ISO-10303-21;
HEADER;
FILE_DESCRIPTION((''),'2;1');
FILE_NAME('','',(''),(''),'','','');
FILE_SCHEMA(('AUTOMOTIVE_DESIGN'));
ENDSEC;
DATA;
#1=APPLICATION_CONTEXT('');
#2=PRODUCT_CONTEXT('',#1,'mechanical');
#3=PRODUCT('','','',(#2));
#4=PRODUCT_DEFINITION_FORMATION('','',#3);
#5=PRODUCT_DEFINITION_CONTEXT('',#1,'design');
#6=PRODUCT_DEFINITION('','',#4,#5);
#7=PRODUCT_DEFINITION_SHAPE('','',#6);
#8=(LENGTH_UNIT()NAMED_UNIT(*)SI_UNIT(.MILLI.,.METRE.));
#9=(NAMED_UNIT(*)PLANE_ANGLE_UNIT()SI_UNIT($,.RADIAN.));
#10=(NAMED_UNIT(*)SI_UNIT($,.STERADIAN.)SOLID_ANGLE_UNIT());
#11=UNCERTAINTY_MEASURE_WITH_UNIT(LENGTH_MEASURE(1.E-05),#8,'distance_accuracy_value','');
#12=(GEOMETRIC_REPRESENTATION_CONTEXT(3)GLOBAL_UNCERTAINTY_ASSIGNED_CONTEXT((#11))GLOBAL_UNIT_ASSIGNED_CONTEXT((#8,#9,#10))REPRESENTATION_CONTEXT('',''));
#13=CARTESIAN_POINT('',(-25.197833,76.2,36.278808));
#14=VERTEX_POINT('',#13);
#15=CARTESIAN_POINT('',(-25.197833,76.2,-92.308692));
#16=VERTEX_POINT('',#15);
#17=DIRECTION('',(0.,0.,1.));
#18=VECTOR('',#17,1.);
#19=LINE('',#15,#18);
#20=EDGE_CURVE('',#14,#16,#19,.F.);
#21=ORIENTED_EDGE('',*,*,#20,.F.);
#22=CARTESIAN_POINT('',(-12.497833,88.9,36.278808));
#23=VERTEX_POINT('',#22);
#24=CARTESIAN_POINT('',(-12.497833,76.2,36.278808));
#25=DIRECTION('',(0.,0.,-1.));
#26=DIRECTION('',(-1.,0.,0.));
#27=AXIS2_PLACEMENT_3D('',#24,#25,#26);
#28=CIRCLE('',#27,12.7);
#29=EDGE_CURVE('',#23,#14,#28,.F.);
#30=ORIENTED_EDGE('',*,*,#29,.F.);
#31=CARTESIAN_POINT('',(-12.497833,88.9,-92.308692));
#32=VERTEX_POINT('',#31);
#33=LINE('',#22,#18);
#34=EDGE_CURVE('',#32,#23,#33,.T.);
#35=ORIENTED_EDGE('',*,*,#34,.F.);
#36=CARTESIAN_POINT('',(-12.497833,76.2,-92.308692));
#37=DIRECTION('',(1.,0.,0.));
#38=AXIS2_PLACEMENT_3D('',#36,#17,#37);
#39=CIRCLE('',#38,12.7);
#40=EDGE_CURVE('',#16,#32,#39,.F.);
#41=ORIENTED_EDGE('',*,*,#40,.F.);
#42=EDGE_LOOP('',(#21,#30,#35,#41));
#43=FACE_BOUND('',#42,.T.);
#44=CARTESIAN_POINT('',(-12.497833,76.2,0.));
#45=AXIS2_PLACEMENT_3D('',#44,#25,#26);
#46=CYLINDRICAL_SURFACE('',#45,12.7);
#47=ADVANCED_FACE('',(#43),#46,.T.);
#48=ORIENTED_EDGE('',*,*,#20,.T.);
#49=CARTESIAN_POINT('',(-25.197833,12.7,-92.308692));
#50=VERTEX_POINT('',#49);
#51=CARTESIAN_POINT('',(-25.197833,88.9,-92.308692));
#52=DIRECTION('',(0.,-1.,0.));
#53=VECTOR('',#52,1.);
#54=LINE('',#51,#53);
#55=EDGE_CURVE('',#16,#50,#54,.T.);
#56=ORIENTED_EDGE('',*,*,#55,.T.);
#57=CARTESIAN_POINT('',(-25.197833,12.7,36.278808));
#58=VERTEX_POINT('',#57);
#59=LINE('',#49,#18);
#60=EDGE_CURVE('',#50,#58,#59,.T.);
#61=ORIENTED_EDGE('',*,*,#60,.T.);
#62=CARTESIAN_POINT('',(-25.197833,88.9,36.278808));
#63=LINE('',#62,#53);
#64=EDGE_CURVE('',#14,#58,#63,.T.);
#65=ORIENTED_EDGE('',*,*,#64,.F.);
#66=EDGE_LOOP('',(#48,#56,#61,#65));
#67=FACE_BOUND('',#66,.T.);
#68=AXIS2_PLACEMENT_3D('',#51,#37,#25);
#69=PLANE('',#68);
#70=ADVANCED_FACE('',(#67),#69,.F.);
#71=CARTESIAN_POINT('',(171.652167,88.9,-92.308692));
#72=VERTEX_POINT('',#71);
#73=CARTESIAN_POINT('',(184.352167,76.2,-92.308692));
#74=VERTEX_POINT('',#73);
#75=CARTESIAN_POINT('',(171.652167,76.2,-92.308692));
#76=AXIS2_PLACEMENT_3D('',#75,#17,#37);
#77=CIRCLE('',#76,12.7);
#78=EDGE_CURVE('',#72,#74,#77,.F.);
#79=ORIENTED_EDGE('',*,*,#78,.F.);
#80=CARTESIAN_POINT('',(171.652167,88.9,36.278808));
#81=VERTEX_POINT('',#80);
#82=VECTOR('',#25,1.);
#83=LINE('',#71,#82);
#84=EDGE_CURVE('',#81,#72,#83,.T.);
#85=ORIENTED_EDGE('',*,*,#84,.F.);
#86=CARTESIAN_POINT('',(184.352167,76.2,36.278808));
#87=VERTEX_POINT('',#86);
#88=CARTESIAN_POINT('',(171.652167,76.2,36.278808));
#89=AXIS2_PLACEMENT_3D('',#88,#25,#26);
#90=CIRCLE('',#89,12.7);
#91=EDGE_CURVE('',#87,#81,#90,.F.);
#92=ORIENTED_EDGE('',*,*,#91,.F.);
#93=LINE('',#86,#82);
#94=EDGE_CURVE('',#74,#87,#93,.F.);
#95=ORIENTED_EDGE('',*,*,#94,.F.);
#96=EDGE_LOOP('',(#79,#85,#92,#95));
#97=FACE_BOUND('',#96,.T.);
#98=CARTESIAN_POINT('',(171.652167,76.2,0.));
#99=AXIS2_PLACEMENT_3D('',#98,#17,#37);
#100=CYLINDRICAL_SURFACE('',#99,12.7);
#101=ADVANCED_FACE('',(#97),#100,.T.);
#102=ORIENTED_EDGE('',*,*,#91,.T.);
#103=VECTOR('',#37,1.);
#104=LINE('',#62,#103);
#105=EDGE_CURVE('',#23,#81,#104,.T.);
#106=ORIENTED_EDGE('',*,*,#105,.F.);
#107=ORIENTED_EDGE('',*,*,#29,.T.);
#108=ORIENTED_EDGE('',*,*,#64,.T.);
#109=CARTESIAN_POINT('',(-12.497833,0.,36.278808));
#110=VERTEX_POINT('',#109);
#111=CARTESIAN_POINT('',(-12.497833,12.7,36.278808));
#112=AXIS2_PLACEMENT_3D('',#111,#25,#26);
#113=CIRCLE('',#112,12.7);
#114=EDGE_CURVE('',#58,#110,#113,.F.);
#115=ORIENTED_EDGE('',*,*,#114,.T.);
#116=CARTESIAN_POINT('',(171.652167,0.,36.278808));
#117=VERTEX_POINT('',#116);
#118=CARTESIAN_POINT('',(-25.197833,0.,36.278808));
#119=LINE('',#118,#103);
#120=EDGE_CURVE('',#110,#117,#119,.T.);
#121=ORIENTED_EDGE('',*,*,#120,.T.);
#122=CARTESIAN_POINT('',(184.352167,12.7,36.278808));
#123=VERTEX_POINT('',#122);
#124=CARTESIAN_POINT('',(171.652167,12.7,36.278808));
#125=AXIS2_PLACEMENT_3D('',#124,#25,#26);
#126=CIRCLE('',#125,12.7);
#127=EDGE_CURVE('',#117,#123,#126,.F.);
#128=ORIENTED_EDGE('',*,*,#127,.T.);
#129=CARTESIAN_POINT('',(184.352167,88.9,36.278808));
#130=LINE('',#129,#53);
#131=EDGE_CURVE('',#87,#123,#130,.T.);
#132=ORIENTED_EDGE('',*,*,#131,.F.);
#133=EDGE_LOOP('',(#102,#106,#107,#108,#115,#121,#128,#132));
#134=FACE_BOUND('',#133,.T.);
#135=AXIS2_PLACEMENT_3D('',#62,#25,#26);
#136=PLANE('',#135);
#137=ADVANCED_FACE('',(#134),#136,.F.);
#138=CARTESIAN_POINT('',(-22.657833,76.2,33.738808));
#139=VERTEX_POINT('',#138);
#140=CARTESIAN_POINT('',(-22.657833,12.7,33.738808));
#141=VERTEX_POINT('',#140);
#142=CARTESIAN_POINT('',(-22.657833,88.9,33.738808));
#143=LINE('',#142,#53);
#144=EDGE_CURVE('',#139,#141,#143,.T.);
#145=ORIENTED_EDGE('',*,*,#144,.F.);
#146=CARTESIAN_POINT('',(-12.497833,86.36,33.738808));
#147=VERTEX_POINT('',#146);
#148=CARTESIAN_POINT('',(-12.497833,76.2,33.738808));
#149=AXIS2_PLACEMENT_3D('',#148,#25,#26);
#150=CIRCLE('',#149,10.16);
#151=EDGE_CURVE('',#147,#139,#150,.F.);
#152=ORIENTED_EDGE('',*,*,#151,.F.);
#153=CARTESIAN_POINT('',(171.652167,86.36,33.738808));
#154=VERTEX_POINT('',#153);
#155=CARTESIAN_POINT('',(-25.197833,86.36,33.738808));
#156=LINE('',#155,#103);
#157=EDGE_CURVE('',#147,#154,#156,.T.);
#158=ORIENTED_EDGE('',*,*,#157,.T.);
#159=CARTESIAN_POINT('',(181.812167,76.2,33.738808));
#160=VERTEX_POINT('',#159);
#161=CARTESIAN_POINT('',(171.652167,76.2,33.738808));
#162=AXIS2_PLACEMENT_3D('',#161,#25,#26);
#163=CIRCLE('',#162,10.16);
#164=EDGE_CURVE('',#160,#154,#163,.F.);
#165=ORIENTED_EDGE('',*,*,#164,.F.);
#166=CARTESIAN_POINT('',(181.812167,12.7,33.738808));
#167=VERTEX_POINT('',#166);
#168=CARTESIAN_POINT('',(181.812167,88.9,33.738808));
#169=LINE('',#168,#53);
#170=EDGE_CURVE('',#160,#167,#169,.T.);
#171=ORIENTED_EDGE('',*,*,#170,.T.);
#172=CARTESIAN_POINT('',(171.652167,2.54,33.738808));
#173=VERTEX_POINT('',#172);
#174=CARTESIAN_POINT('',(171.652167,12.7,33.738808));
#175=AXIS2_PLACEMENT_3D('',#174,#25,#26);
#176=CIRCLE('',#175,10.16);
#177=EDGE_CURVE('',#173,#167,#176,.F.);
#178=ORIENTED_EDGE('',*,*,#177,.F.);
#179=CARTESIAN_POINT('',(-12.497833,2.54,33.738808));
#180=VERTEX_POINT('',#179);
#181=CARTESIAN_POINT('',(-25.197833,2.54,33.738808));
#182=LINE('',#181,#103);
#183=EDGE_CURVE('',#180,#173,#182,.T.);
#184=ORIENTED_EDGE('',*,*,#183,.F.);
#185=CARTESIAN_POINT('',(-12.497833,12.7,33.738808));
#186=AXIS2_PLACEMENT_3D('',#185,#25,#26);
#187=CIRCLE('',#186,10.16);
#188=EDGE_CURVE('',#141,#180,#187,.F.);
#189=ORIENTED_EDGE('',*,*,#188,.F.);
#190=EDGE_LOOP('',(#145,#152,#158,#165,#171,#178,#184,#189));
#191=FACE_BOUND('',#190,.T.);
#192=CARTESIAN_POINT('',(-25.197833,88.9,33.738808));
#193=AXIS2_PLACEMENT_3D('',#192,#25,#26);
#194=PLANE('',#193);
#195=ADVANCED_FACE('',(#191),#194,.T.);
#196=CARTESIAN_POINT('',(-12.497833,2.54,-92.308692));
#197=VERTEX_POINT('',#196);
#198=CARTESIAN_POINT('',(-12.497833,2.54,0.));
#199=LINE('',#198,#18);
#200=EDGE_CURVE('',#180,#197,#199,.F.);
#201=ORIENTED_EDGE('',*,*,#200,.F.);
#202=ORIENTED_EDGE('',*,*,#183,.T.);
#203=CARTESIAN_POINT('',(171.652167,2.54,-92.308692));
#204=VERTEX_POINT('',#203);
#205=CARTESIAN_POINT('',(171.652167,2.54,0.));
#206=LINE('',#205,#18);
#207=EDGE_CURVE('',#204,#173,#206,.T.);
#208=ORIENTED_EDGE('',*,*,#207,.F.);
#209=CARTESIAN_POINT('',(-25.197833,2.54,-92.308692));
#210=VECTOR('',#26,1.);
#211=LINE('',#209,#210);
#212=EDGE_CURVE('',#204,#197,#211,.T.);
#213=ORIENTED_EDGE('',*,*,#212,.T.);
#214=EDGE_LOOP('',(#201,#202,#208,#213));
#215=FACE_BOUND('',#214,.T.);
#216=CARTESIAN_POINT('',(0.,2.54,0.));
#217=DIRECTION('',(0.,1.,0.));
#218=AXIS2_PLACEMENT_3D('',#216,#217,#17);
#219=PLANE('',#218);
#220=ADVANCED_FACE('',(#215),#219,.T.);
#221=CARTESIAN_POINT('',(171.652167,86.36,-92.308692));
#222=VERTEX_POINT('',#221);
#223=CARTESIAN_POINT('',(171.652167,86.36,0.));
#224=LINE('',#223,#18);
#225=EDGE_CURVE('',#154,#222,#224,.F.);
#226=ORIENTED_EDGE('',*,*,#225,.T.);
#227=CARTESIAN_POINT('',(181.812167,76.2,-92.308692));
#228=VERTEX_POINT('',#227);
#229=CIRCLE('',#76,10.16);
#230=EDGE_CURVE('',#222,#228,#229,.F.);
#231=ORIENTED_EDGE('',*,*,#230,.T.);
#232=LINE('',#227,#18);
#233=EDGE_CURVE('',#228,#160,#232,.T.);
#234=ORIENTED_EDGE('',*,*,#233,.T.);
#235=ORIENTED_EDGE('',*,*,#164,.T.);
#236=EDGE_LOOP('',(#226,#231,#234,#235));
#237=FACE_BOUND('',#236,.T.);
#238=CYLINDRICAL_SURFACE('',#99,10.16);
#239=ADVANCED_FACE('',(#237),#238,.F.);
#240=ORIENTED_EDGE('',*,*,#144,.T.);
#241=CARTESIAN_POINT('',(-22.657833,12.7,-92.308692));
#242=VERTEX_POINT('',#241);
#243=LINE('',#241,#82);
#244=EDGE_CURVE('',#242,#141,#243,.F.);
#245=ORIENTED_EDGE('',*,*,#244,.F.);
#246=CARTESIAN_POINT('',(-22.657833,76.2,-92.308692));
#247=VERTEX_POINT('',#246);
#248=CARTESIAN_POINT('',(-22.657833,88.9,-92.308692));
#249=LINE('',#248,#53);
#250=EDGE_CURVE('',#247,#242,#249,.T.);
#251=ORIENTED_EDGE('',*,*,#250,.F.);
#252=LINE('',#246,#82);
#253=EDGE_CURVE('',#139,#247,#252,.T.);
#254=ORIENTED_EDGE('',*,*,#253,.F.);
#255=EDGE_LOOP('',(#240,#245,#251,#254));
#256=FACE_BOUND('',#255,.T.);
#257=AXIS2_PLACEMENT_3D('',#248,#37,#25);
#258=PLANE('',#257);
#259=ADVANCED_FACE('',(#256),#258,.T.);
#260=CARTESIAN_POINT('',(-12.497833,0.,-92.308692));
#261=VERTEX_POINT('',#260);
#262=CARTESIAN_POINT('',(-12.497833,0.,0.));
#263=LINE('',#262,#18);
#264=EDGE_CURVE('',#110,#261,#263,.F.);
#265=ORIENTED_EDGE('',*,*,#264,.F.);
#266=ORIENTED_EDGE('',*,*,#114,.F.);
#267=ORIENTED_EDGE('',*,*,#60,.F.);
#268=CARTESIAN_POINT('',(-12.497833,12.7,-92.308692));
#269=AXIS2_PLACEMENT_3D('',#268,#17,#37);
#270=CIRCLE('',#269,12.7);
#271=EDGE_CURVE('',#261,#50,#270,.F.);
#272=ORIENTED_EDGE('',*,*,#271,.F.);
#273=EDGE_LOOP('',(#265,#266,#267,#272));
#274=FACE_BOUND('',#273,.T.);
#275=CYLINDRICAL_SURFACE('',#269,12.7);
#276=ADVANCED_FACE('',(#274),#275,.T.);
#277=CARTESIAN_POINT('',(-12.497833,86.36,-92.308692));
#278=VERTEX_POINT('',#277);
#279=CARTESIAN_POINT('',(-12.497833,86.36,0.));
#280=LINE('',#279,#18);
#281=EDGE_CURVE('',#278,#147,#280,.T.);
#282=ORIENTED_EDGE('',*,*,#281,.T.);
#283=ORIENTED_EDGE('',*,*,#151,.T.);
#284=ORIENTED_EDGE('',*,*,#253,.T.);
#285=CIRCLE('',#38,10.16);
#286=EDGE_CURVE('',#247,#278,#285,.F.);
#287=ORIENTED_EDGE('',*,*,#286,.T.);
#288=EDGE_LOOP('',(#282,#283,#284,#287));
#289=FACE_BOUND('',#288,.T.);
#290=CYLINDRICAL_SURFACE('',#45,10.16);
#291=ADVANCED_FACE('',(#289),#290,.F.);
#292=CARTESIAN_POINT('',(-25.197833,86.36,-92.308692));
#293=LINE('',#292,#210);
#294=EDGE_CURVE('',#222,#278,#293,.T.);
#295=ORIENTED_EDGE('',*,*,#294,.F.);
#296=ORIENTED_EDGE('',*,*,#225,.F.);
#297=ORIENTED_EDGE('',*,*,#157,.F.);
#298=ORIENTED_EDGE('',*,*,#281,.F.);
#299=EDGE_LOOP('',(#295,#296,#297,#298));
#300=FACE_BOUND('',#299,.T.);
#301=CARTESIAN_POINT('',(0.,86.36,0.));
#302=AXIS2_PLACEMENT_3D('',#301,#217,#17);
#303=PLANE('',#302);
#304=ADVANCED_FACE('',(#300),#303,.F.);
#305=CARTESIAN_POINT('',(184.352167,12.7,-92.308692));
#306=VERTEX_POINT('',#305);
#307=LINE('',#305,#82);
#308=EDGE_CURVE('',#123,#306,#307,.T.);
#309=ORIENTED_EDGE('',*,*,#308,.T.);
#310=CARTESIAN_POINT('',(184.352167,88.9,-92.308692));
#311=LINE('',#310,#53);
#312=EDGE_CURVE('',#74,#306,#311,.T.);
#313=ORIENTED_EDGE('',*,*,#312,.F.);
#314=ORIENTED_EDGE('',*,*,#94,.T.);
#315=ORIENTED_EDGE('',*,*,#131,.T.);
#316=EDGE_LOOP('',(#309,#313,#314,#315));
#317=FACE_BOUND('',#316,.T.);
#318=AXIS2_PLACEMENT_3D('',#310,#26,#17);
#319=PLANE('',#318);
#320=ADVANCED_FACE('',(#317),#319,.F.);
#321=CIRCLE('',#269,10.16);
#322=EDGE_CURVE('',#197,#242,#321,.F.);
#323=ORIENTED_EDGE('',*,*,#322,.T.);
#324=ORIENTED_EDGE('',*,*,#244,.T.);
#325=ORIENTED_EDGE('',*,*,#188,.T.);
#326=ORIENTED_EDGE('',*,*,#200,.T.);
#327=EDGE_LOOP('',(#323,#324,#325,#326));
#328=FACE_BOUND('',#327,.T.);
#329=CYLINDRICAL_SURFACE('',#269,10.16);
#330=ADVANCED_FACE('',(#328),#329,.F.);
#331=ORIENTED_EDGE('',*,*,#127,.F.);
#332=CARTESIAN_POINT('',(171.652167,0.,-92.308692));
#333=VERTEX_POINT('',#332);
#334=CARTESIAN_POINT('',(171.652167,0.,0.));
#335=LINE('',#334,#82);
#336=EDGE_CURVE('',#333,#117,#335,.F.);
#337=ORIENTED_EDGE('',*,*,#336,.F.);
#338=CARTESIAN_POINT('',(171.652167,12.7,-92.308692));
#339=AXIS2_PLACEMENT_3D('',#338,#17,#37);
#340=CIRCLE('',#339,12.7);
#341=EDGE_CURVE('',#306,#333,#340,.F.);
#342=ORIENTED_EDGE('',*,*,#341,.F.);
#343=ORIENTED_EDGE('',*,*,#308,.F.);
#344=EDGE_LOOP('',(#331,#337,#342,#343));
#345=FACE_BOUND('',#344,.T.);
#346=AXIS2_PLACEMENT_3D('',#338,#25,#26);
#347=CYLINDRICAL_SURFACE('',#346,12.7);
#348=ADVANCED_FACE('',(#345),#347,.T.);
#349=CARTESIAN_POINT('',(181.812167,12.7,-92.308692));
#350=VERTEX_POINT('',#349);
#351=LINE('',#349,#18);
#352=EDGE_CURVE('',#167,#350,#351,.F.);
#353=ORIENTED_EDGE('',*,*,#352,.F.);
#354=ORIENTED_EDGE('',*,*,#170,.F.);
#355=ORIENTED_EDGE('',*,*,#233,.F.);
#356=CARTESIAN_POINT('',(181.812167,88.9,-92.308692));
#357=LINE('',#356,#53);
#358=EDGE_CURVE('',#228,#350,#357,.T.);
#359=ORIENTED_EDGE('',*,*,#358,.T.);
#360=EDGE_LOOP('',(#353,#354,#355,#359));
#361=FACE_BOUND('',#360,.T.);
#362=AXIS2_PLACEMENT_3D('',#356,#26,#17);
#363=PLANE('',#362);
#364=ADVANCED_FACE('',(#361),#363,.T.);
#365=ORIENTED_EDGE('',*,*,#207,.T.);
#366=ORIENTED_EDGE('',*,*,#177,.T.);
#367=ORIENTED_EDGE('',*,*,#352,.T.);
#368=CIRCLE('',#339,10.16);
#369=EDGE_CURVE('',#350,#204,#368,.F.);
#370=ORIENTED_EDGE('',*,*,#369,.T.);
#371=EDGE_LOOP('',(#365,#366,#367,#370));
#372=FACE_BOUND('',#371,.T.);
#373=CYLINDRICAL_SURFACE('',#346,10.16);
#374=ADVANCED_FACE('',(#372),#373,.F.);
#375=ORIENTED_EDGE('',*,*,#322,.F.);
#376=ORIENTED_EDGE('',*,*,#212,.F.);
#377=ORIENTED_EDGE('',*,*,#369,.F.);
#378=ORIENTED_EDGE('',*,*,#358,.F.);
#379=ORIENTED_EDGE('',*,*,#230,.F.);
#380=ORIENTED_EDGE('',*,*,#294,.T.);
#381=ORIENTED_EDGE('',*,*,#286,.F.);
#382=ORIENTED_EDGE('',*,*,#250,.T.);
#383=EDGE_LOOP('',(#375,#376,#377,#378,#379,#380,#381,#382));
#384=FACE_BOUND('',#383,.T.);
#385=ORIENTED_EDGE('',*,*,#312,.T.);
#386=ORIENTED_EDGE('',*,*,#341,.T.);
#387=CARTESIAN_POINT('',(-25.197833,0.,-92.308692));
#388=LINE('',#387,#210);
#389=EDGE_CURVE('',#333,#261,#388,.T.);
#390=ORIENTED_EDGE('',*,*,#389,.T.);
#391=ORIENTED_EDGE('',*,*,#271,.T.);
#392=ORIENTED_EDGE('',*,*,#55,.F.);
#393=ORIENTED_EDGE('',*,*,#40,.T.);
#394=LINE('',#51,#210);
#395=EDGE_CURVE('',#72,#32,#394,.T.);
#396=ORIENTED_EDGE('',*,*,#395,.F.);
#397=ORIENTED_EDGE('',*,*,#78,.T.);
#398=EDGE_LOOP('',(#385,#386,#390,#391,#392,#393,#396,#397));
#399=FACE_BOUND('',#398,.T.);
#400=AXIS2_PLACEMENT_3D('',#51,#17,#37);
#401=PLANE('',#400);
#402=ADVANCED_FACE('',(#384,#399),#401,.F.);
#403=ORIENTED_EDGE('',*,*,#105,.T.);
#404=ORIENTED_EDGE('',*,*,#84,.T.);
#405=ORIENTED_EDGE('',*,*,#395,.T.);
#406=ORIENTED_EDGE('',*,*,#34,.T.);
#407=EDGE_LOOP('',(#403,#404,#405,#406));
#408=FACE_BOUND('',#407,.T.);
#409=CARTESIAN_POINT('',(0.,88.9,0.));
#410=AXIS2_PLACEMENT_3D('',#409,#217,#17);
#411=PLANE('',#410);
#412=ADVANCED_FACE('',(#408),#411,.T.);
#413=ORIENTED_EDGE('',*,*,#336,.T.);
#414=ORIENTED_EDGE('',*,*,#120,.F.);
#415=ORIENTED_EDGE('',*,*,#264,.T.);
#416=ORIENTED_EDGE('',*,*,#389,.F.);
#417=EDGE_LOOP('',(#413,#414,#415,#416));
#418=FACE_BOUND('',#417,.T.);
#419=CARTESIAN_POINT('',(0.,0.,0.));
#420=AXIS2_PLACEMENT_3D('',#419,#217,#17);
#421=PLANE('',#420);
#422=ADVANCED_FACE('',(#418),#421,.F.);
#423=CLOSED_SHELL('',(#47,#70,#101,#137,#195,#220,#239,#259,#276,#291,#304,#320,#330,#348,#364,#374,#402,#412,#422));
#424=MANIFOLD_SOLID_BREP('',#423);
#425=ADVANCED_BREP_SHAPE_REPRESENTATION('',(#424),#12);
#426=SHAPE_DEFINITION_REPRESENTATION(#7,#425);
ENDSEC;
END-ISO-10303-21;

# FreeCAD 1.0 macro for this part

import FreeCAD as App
import Part
import Sketcher
Q = App.Units.Quantity


def edges_at(feature, points):
    """Names of the edges that pass closest to the given points."""
    edges = feature.Shape.Edges
    near = lambda p: min(range(len(edges)), key=lambda i: edges[i].distToShape(Part.Vertex(*p))[0])
    return sorted({f"Edge{near(p) + 1}" for p in points})


def faces_at(feature, points):
    """Names of the faces that lie closest to the given points."""
    faces = feature.Shape.Faces
    near = lambda p: min(range(len(faces)), key=lambda i: faces[i].distToShape(Part.Vertex(*p))[0])
    return sorted({f"Face{near(p) + 1}" for p in points})


def add_polygon(sketch, points):
    """Adds a closed chain of lines whose ends are joined by coincident constraints."""
    first, n = sketch.GeometryCount, len(points)
    for a, b in zip(points, points[1:] + points[:1]):
        sketch.addGeometry(Part.LineSegment(App.Vector(*a, 0), App.Vector(*b, 0)), False)
    for i in range(n):
        sketch.addConstraint(Sketcher.Constraint("Coincident", first + i, 2, first + (i + 1) % n, 1))

doc = App.newDocument("Part")
body = doc.addObject("PartDesign::Body", "Body")

# Sketch on XZ plane
sketch1 = doc.addObject("Sketcher::SketchObject", "Sketch")
body.addObject(sketch1)
sketch1.AttachmentSupport = (doc.XZ_Plane, [""])
sketch1.MapMode = "FlatFace"
add_polygon(sketch1, [(-25, -92), (-25, 36), (184, 36), (184, -92)])  # lines 0-3
sketch1.addConstraint([
    Sketcher.Constraint("Vertical", 0),
    Sketcher.Constraint("Horizontal", 1),
    Sketcher.Constraint("Vertical", 2),
    Sketcher.Constraint("Horizontal", 3),
    Sketcher.Constraint("DistanceX", 1, 1, 1, 2, Q("8.25 in")),
    Sketcher.Constraint("DistanceY", 0, 1, 0, 2, Q("5.0625 in")),
    Sketcher.Constraint("DistanceY", -1, 1, 0, 2, Q("36.278808 mm")),
    Sketcher.Constraint("DistanceX", 0, 2, -1, 1, Q("25.197833 mm")),
])
pad1 = doc.addObject("PartDesign::Pad", "Pad")
body.addObject(pad1)
pad1.Profile = sketch1
pad1.Length = Q("3.5 in")
pad1.Reversed = True
doc.recompute()

fillet = doc.addObject("PartDesign::Fillet", "Fillet")
body.addObject(fillet)
fillet.Base = (pad1, edges_at(pad1, [(184.352, 88.9, -28.015)]))
fillet.Radius = Q("0.5 in")
doc.recompute()

fillet2 = doc.addObject("PartDesign::Fillet", "Fillet001")
body.addObject(fillet2)
fillet2.Base = (fillet, edges_at(fillet, [(-25.198, 88.9, -28.015)]))
fillet2.Radius = Q("0.5 in")
doc.recompute()

fillet3 = doc.addObject("PartDesign::Fillet", "Fillet002")
body.addObject(fillet3)
fillet3.Base = (fillet2, edges_at(fillet2, [(-25.198, 0, -28.015)]))
fillet3.Radius = Q("0.5 in")
doc.recompute()

fillet4 = doc.addObject("PartDesign::Fillet", "Fillet003")
body.addObject(fillet4)
fillet4.Base = (fillet3, edges_at(fillet3, [(184.352, 0, -28.015)]))
fillet4.Radius = Q("0.5 in")
doc.recompute()

thickness = doc.addObject("PartDesign::Thickness", "Thickness")
body.addObject(thickness)
thickness.Base = (fillet4, faces_at(fillet4, [(79.577, 44.45, -92.309)]))
thickness.Value = Q("0.1 in")
thickness.Reversed = True
thickness.Join = "Intersection"

doc.recompute()
